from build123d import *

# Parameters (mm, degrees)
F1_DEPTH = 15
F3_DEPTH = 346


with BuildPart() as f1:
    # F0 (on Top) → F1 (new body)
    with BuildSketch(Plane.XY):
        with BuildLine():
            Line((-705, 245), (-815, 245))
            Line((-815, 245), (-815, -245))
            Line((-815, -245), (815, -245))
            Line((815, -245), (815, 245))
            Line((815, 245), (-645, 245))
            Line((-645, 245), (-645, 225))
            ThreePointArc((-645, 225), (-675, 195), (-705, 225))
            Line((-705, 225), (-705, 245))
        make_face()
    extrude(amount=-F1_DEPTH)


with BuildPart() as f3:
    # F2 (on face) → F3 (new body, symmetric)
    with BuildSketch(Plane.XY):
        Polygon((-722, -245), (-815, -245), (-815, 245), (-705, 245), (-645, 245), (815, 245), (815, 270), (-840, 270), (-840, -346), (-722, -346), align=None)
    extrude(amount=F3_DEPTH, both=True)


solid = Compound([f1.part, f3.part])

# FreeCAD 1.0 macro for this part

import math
import FreeCAD as App
import Part
import Sketcher
Q = App.Units.Quantity


def add_polygon(sketch, points):
    """Adds a closed chain of lines whose ends are joined by coincident constraints."""
    first, n = sketch.GeometryCount, len(points)
    for a, b in zip(points, points[1:] + points[:1]):
        sketch.addGeometry(Part.LineSegment(App.Vector(*a, 0), App.Vector(*b, 0)), False)
    for i in range(n):
        sketch.addConstraint(Sketcher.Constraint("Coincident", first + i, 2, first + (i + 1) % n, 1))

doc = App.newDocument("Part")
body = doc.addObject("PartDesign::Body", "Body")

# Sketch on XY plane
sketch1 = doc.addObject("Sketcher::SketchObject", "Sketch")
body.addObject(sketch1)
sketch1.AttachmentSupport = (doc.XY_Plane, [""])
sketch1.MapMode = "FlatFace"
sketch1.addGeometry(Part.LineSegment(App.Vector(-705, 245, 0), App.Vector(-815, 245, 0)), False)
sketch1.addGeometry(Part.LineSegment(App.Vector(-815, 245, 0), App.Vector(-815, -245, 0)), False)
sketch1.addGeometry(Part.LineSegment(App.Vector(-815, -245, 0), App.Vector(815, -245, 0)), False)
sketch1.addGeometry(Part.LineSegment(App.Vector(815, -245, 0), App.Vector(815, 245, 0)), False)
sketch1.addGeometry(Part.LineSegment(App.Vector(815, 245, 0), App.Vector(-645, 245, 0)), False)
sketch1.addGeometry(Part.LineSegment(App.Vector(-645, 245, 0), App.Vector(-645, 225, 0)), False)
sketch1.addGeometry(Part.ArcOfCircle(Part.Circle(App.Vector(-675, 225, 0), App.Vector(0, 0, 1), 30), math.radians(180), math.radians(360)), False)
sketch1.addGeometry(Part.LineSegment(App.Vector(-705, 225, 0), App.Vector(-705, 245, 0)), False)
sketch1.addConstraint(Sketcher.Constraint("Coincident", 0, 2, 1, 1))
sketch1.addConstraint(Sketcher.Constraint("Coincident", 1, 2, 2, 1))
sketch1.addConstraint(Sketcher.Constraint("Coincident", 2, 2, 3, 1))
sketch1.addConstraint(Sketcher.Constraint("Coincident", 3, 2, 4, 1))
sketch1.addConstraint(Sketcher.Constraint("Coincident", 4, 2, 5, 1))
sketch1.addConstraint(Sketcher.Constraint("Tangent", 5, 2, 6, 2))
sketch1.addConstraint(Sketcher.Constraint("Tangent", 6, 1, 7, 1))
sketch1.addConstraint(Sketcher.Constraint("Coincident", 7, 2, 0, 1))
sketch1.addConstraint(Sketcher.Constraint("Horizontal", 0))
sketch1.addConstraint(Sketcher.Constraint("Vertical", 1))
sketch1.addConstraint(Sketcher.Constraint("Horizontal", 2))
sketch1.addConstraint(Sketcher.Constraint("Vertical", 3))
sketch1.addConstraint(Sketcher.Constraint("Horizontal", 4))
sketch1.addConstraint(Sketcher.Constraint("Vertical", 5))
sketch1.addConstraint(Sketcher.Constraint("Vertical", 7))
sketch1.addConstraint(Sketcher.Constraint("Symmetric", 0, 2, 2, 2, -1, 1))
sketch1.addConstraint(Sketcher.Constraint("Horizontal", 0, 2, 3, 2))
sketch1.addConstraint(Sketcher.Constraint("Radius", 6, Q("30 mm")))
sketch1.addConstraint(Sketcher.Constraint("DistanceX", 0, 2, 0, 1, Q("110 mm")))
sketch1.addConstraint(Sketcher.Constraint("DistanceX", 2, 1, 2, 2, Q("1630 mm")))
sketch1.addConstraint(Sketcher.Constraint("DistanceY", 1, 2, 1, 1, Q("490 mm")))
sketch1.addConstraint(Sketcher.Constraint("DistanceY", 5, 2, 5, 1, Q("20 mm")))
pad1 = doc.addObject("PartDesign::Pad", "Pad")
body.addObject(pad1)
pad1.Profile = sketch1
pad1.Length = 15
pad1.Reversed = True
body2 = doc.addObject("PartDesign::Body", "Body001")

# Sketch on XY plane
sketch2 = doc.addObject("Sketcher::SketchObject", "Sketch001")
body2.addObject(sketch2)
sketch2.AttachmentSupport = (doc.getObject("XY_Plane001"), [""])
sketch2.MapMode = "FlatFace"
add_polygon(sketch2, [(-722, -245), (-815, -245), (-815, 245), (815, 245), (815, 270), (-840, 270), (-840, -346), (-722, -346)])  # lines 0-7
sketch2.addConstraint(Sketcher.Constraint("Horizontal", 0))
sketch2.addConstraint(Sketcher.Constraint("Vertical", 1))
sketch2.addConstraint(Sketcher.Constraint("Horizontal", 2))
sketch2.addConstraint(Sketcher.Constraint("Vertical", 3))
sketch2.addConstraint(Sketcher.Constraint("Horizontal", 4))
sketch2.addConstraint(Sketcher.Constraint("Vertical", 5))
sketch2.addConstraint(Sketcher.Constraint("Horizontal", 6))
sketch2.addConstraint(Sketcher.Constraint("Vertical", 7))
sketch2.addConstraint(Sketcher.Constraint("Symmetric", 0, 2, 2, 2, -1, 1))
sketch2.addConstraint(Sketcher.Constraint("DistanceX", 0, 2, 0, 1, Q("93 mm")))
sketch2.addConstraint(Sketcher.Constraint("DistanceX", 2, 1, 2, 2, Q("1630 mm")))
sketch2.addConstraint(Sketcher.Constraint("DistanceX", 4, 2, 4, 1, Q("1655 mm")))
sketch2.addConstraint(Sketcher.Constraint("DistanceY", 1, 1, 1, 2, Q("490 mm")))
sketch2.addConstraint(Sketcher.Constraint("DistanceY", 3, 1, 3, 2, Q("25 mm")))
sketch2.addConstraint(Sketcher.Constraint("DistanceY", 5, 2, 5, 1, Q("616 mm")))
pad2 = doc.addObject("PartDesign::Pad", "Pad001")
body2.addObject(pad2)
pad2.Profile = sketch2
pad2.Length = 692
pad2.Midplane = True

doc.recompute()
